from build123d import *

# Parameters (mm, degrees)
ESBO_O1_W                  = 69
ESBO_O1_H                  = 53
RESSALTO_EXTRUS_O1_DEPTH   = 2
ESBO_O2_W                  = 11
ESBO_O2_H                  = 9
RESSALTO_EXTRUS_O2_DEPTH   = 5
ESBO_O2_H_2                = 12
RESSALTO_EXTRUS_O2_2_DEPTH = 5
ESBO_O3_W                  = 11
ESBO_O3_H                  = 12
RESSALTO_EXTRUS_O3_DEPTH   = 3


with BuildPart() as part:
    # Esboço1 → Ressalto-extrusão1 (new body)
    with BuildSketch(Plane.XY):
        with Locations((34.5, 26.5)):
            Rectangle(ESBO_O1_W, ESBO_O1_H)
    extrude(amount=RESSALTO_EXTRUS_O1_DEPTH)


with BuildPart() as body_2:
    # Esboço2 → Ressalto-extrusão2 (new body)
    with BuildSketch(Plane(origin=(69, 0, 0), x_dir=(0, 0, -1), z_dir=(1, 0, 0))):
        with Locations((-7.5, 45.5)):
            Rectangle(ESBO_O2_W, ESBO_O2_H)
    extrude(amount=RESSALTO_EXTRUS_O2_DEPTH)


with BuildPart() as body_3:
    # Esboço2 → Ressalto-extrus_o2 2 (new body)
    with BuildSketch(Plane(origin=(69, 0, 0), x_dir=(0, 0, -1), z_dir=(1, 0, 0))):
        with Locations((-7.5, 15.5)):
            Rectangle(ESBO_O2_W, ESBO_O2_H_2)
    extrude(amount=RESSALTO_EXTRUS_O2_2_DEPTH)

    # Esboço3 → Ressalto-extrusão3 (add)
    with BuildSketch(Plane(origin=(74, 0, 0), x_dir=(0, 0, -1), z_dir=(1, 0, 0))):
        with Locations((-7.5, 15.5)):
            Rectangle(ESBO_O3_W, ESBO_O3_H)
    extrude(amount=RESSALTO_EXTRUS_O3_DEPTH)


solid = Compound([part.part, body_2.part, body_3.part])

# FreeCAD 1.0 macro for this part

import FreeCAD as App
import Part
import Sketcher
from FreeCAD import Vector

doc = App.newDocument("Part")
body = doc.addObject("PartDesign::Body", "Body")

# Sketch on XY plane
sketch1 = body.newObject("Sketcher::SketchObject", "Sketch")
sketch1.AttachmentSupport = (doc.getObject("XY_Plane"), [""])
sketch1.MapMode = "FlatFace"
sketch1.addGeometry([
    Part.LineSegment(Vector(0, 53, 0), Vector(0, 0, 0)),
    Part.LineSegment(Vector(0, 0, 0), Vector(69, 0, 0)),
    Part.LineSegment(Vector(69, 0, 0), Vector(69, 53, 0)),
    Part.LineSegment(Vector(69, 53, 0), Vector(0, 53, 0)),
], False)
sketch1.addConstraint([
    Sketcher.Constraint("Coincident", 0, 2, 1, 1),
    Sketcher.Constraint("Coincident", 1, 2, 2, 1),
    Sketcher.Constraint("Coincident", 2, 2, 3, 1),
    Sketcher.Constraint("Coincident", 3, 2, 0, 1),
    Sketcher.Constraint("Vertical", 0),
    Sketcher.Constraint("Horizontal", 1),
    Sketcher.Constraint("Vertical", 2),
    Sketcher.Constraint("Horizontal", 3),
    Sketcher.Constraint("Coincident", 0, 2, -1, 1),
    Sketcher.Constraint("DistanceX", 1, 1, 1, 2, 69.0),
    Sketcher.Constraint("DistanceY", 0, 2, 0, 1, 53.0),
])
pad1 = body.newObject("PartDesign::Pad", "Pad")
pad1.Profile = sketch1
pad1.Length = 2
body2 = doc.addObject("PartDesign::Body", "Body001")

# Sketch on YZ plane
sketch2 = body2.newObject("Sketcher::SketchObject", "Sketch001")
sketch2.AttachmentSupport = (doc.getObject("YZ_Plane001"), [""])
sketch2.MapMode = "FlatFace"
sketch2.AttachmentOffset = App.Placement(Vector(0, 0, 69), App.Rotation())
sketch2.addGeometry([
    Part.LineSegment(Vector(50, 13, 0), Vector(41, 13, 0)),
    Part.LineSegment(Vector(41, 13, 0), Vector(41, 2, 0)),
    Part.LineSegment(Vector(41, 2, 0), Vector(50, 2, 0)),
    Part.LineSegment(Vector(50, 2, 0), Vector(50, 13, 0)),
], False)
sketch2.addConstraint([
    Sketcher.Constraint("Coincident", 0, 2, 1, 1),
    Sketcher.Constraint("Coincident", 1, 2, 2, 1),
    Sketcher.Constraint("Coincident", 2, 2, 3, 1),
    Sketcher.Constraint("Coincident", 3, 2, 0, 1),
    Sketcher.Constraint("Horizontal", 0),
    Sketcher.Constraint("Vertical", 1),
    Sketcher.Constraint("Horizontal", 2),
    Sketcher.Constraint("Vertical", 3),
    Sketcher.Constraint("DistanceX", 0, 2, 0, 1, 9.0),
    Sketcher.Constraint("DistanceY", 1, 2, 1, 1, 11.0),
    Sketcher.Constraint("DistanceX", -1, 1, 0, 2, 41.0),
    Sketcher.Constraint("DistanceY", -1, 1, 0, 2, 13.0),
])
pad2 = body2.newObject("PartDesign::Pad", "Pad001")
pad2.Profile = sketch2
pad2.Length = 5
body3 = doc.addObject("PartDesign::Body", "Body002")

# Sketch on YZ plane
sketch3 = body3.newObject("Sketcher::SketchObject", "Sketch002")
sketch3.AttachmentSupport = (doc.getObject("YZ_Plane002"), [""])
sketch3.MapMode = "FlatFace"
sketch3.AttachmentOffset = App.Placement(Vector(0, 0, 69), App.Rotation())
sketch3.addGeometry([
    Part.LineSegment(Vector(22, 13, 0), Vector(10, 13, 0)),
    Part.LineSegment(Vector(10, 13, 0), Vector(10, 2, 0)),
    Part.LineSegment(Vector(10, 2, 0), Vector(22, 2, 0)),
    Part.LineSegment(Vector(22, 2, 0), Vector(22, 13, 0)),
], False)
sketch3.addConstraint([
    Sketcher.Constraint("Coincident", 0, 2, 1, 1),
    Sketcher.Constraint("Coincident", 1, 2, 2, 1),
    Sketcher.Constraint("Coincident", 2, 2, 3, 1),
    Sketcher.Constraint("Coincident", 3, 2, 0, 1),
    Sketcher.Constraint("Horizontal", 0),
    Sketcher.Constraint("Vertical", 1),
    Sketcher.Constraint("Horizontal", 2),
    Sketcher.Constraint("Vertical", 3),
    Sketcher.Constraint("DistanceX", 0, 2, 0, 1, 12.0),
    Sketcher.Constraint("DistanceY", 1, 2, 1, 1, 11.0),
    Sketcher.Constraint("DistanceY", -1, 1, 0, 2, 13.0),
    Sketcher.Constraint("DistanceX", -1, 1, 0, 2, 9.5),
])
pad3 = body3.newObject("PartDesign::Pad", "Pad002")
pad3.Profile = sketch3
pad3.Length = 5

# Sketch on YZ plane
sketch4 = body3.newObject("Sketcher::SketchObject", "Sketch003")
sketch4.AttachmentSupport = (doc.getObject("YZ_Plane002"), [""])
sketch4.MapMode = "FlatFace"
sketch4.AttachmentOffset = App.Placement(Vector(0, 0, 74), App.Rotation())
sketch4.addGeometry([
    Part.LineSegment(Vector(22, 13, 0), Vector(10, 13, 0)),
    Part.LineSegment(Vector(10, 13, 0), Vector(10, 2, 0)),
    Part.LineSegment(Vector(10, 2, 0), Vector(22, 2, 0)),
    Part.LineSegment(Vector(22, 2, 0), Vector(22, 13, 0)),
], False)
sketch4.addConstraint([
    Sketcher.Constraint("Coincident", 0, 2, 1, 1),
    Sketcher.Constraint("Coincident", 1, 2, 2, 1),
    Sketcher.Constraint("Coincident", 2, 2, 3, 1),
    Sketcher.Constraint("Coincident", 3, 2, 0, 1),
    Sketcher.Constraint("Horizontal", 0),
    Sketcher.Constraint("Vertical", 1),
    Sketcher.Constraint("Horizontal", 2),
    Sketcher.Constraint("Vertical", 3),
    Sketcher.Constraint("DistanceX", 0, 2, 0, 1, 12.0),
    Sketcher.Constraint("DistanceY", 1, 2, 1, 1, 11.0),
    Sketcher.Constraint("DistanceY", -1, 1, 0, 2, 13.0),
    Sketcher.Constraint("DistanceX", -1, 1, 0, 2, 9.5),
])
pad4 = body3.newObject("PartDesign::Pad", "Pad003")
pad4.Profile = sketch4
pad4.Length = 3

doc.recompute()
